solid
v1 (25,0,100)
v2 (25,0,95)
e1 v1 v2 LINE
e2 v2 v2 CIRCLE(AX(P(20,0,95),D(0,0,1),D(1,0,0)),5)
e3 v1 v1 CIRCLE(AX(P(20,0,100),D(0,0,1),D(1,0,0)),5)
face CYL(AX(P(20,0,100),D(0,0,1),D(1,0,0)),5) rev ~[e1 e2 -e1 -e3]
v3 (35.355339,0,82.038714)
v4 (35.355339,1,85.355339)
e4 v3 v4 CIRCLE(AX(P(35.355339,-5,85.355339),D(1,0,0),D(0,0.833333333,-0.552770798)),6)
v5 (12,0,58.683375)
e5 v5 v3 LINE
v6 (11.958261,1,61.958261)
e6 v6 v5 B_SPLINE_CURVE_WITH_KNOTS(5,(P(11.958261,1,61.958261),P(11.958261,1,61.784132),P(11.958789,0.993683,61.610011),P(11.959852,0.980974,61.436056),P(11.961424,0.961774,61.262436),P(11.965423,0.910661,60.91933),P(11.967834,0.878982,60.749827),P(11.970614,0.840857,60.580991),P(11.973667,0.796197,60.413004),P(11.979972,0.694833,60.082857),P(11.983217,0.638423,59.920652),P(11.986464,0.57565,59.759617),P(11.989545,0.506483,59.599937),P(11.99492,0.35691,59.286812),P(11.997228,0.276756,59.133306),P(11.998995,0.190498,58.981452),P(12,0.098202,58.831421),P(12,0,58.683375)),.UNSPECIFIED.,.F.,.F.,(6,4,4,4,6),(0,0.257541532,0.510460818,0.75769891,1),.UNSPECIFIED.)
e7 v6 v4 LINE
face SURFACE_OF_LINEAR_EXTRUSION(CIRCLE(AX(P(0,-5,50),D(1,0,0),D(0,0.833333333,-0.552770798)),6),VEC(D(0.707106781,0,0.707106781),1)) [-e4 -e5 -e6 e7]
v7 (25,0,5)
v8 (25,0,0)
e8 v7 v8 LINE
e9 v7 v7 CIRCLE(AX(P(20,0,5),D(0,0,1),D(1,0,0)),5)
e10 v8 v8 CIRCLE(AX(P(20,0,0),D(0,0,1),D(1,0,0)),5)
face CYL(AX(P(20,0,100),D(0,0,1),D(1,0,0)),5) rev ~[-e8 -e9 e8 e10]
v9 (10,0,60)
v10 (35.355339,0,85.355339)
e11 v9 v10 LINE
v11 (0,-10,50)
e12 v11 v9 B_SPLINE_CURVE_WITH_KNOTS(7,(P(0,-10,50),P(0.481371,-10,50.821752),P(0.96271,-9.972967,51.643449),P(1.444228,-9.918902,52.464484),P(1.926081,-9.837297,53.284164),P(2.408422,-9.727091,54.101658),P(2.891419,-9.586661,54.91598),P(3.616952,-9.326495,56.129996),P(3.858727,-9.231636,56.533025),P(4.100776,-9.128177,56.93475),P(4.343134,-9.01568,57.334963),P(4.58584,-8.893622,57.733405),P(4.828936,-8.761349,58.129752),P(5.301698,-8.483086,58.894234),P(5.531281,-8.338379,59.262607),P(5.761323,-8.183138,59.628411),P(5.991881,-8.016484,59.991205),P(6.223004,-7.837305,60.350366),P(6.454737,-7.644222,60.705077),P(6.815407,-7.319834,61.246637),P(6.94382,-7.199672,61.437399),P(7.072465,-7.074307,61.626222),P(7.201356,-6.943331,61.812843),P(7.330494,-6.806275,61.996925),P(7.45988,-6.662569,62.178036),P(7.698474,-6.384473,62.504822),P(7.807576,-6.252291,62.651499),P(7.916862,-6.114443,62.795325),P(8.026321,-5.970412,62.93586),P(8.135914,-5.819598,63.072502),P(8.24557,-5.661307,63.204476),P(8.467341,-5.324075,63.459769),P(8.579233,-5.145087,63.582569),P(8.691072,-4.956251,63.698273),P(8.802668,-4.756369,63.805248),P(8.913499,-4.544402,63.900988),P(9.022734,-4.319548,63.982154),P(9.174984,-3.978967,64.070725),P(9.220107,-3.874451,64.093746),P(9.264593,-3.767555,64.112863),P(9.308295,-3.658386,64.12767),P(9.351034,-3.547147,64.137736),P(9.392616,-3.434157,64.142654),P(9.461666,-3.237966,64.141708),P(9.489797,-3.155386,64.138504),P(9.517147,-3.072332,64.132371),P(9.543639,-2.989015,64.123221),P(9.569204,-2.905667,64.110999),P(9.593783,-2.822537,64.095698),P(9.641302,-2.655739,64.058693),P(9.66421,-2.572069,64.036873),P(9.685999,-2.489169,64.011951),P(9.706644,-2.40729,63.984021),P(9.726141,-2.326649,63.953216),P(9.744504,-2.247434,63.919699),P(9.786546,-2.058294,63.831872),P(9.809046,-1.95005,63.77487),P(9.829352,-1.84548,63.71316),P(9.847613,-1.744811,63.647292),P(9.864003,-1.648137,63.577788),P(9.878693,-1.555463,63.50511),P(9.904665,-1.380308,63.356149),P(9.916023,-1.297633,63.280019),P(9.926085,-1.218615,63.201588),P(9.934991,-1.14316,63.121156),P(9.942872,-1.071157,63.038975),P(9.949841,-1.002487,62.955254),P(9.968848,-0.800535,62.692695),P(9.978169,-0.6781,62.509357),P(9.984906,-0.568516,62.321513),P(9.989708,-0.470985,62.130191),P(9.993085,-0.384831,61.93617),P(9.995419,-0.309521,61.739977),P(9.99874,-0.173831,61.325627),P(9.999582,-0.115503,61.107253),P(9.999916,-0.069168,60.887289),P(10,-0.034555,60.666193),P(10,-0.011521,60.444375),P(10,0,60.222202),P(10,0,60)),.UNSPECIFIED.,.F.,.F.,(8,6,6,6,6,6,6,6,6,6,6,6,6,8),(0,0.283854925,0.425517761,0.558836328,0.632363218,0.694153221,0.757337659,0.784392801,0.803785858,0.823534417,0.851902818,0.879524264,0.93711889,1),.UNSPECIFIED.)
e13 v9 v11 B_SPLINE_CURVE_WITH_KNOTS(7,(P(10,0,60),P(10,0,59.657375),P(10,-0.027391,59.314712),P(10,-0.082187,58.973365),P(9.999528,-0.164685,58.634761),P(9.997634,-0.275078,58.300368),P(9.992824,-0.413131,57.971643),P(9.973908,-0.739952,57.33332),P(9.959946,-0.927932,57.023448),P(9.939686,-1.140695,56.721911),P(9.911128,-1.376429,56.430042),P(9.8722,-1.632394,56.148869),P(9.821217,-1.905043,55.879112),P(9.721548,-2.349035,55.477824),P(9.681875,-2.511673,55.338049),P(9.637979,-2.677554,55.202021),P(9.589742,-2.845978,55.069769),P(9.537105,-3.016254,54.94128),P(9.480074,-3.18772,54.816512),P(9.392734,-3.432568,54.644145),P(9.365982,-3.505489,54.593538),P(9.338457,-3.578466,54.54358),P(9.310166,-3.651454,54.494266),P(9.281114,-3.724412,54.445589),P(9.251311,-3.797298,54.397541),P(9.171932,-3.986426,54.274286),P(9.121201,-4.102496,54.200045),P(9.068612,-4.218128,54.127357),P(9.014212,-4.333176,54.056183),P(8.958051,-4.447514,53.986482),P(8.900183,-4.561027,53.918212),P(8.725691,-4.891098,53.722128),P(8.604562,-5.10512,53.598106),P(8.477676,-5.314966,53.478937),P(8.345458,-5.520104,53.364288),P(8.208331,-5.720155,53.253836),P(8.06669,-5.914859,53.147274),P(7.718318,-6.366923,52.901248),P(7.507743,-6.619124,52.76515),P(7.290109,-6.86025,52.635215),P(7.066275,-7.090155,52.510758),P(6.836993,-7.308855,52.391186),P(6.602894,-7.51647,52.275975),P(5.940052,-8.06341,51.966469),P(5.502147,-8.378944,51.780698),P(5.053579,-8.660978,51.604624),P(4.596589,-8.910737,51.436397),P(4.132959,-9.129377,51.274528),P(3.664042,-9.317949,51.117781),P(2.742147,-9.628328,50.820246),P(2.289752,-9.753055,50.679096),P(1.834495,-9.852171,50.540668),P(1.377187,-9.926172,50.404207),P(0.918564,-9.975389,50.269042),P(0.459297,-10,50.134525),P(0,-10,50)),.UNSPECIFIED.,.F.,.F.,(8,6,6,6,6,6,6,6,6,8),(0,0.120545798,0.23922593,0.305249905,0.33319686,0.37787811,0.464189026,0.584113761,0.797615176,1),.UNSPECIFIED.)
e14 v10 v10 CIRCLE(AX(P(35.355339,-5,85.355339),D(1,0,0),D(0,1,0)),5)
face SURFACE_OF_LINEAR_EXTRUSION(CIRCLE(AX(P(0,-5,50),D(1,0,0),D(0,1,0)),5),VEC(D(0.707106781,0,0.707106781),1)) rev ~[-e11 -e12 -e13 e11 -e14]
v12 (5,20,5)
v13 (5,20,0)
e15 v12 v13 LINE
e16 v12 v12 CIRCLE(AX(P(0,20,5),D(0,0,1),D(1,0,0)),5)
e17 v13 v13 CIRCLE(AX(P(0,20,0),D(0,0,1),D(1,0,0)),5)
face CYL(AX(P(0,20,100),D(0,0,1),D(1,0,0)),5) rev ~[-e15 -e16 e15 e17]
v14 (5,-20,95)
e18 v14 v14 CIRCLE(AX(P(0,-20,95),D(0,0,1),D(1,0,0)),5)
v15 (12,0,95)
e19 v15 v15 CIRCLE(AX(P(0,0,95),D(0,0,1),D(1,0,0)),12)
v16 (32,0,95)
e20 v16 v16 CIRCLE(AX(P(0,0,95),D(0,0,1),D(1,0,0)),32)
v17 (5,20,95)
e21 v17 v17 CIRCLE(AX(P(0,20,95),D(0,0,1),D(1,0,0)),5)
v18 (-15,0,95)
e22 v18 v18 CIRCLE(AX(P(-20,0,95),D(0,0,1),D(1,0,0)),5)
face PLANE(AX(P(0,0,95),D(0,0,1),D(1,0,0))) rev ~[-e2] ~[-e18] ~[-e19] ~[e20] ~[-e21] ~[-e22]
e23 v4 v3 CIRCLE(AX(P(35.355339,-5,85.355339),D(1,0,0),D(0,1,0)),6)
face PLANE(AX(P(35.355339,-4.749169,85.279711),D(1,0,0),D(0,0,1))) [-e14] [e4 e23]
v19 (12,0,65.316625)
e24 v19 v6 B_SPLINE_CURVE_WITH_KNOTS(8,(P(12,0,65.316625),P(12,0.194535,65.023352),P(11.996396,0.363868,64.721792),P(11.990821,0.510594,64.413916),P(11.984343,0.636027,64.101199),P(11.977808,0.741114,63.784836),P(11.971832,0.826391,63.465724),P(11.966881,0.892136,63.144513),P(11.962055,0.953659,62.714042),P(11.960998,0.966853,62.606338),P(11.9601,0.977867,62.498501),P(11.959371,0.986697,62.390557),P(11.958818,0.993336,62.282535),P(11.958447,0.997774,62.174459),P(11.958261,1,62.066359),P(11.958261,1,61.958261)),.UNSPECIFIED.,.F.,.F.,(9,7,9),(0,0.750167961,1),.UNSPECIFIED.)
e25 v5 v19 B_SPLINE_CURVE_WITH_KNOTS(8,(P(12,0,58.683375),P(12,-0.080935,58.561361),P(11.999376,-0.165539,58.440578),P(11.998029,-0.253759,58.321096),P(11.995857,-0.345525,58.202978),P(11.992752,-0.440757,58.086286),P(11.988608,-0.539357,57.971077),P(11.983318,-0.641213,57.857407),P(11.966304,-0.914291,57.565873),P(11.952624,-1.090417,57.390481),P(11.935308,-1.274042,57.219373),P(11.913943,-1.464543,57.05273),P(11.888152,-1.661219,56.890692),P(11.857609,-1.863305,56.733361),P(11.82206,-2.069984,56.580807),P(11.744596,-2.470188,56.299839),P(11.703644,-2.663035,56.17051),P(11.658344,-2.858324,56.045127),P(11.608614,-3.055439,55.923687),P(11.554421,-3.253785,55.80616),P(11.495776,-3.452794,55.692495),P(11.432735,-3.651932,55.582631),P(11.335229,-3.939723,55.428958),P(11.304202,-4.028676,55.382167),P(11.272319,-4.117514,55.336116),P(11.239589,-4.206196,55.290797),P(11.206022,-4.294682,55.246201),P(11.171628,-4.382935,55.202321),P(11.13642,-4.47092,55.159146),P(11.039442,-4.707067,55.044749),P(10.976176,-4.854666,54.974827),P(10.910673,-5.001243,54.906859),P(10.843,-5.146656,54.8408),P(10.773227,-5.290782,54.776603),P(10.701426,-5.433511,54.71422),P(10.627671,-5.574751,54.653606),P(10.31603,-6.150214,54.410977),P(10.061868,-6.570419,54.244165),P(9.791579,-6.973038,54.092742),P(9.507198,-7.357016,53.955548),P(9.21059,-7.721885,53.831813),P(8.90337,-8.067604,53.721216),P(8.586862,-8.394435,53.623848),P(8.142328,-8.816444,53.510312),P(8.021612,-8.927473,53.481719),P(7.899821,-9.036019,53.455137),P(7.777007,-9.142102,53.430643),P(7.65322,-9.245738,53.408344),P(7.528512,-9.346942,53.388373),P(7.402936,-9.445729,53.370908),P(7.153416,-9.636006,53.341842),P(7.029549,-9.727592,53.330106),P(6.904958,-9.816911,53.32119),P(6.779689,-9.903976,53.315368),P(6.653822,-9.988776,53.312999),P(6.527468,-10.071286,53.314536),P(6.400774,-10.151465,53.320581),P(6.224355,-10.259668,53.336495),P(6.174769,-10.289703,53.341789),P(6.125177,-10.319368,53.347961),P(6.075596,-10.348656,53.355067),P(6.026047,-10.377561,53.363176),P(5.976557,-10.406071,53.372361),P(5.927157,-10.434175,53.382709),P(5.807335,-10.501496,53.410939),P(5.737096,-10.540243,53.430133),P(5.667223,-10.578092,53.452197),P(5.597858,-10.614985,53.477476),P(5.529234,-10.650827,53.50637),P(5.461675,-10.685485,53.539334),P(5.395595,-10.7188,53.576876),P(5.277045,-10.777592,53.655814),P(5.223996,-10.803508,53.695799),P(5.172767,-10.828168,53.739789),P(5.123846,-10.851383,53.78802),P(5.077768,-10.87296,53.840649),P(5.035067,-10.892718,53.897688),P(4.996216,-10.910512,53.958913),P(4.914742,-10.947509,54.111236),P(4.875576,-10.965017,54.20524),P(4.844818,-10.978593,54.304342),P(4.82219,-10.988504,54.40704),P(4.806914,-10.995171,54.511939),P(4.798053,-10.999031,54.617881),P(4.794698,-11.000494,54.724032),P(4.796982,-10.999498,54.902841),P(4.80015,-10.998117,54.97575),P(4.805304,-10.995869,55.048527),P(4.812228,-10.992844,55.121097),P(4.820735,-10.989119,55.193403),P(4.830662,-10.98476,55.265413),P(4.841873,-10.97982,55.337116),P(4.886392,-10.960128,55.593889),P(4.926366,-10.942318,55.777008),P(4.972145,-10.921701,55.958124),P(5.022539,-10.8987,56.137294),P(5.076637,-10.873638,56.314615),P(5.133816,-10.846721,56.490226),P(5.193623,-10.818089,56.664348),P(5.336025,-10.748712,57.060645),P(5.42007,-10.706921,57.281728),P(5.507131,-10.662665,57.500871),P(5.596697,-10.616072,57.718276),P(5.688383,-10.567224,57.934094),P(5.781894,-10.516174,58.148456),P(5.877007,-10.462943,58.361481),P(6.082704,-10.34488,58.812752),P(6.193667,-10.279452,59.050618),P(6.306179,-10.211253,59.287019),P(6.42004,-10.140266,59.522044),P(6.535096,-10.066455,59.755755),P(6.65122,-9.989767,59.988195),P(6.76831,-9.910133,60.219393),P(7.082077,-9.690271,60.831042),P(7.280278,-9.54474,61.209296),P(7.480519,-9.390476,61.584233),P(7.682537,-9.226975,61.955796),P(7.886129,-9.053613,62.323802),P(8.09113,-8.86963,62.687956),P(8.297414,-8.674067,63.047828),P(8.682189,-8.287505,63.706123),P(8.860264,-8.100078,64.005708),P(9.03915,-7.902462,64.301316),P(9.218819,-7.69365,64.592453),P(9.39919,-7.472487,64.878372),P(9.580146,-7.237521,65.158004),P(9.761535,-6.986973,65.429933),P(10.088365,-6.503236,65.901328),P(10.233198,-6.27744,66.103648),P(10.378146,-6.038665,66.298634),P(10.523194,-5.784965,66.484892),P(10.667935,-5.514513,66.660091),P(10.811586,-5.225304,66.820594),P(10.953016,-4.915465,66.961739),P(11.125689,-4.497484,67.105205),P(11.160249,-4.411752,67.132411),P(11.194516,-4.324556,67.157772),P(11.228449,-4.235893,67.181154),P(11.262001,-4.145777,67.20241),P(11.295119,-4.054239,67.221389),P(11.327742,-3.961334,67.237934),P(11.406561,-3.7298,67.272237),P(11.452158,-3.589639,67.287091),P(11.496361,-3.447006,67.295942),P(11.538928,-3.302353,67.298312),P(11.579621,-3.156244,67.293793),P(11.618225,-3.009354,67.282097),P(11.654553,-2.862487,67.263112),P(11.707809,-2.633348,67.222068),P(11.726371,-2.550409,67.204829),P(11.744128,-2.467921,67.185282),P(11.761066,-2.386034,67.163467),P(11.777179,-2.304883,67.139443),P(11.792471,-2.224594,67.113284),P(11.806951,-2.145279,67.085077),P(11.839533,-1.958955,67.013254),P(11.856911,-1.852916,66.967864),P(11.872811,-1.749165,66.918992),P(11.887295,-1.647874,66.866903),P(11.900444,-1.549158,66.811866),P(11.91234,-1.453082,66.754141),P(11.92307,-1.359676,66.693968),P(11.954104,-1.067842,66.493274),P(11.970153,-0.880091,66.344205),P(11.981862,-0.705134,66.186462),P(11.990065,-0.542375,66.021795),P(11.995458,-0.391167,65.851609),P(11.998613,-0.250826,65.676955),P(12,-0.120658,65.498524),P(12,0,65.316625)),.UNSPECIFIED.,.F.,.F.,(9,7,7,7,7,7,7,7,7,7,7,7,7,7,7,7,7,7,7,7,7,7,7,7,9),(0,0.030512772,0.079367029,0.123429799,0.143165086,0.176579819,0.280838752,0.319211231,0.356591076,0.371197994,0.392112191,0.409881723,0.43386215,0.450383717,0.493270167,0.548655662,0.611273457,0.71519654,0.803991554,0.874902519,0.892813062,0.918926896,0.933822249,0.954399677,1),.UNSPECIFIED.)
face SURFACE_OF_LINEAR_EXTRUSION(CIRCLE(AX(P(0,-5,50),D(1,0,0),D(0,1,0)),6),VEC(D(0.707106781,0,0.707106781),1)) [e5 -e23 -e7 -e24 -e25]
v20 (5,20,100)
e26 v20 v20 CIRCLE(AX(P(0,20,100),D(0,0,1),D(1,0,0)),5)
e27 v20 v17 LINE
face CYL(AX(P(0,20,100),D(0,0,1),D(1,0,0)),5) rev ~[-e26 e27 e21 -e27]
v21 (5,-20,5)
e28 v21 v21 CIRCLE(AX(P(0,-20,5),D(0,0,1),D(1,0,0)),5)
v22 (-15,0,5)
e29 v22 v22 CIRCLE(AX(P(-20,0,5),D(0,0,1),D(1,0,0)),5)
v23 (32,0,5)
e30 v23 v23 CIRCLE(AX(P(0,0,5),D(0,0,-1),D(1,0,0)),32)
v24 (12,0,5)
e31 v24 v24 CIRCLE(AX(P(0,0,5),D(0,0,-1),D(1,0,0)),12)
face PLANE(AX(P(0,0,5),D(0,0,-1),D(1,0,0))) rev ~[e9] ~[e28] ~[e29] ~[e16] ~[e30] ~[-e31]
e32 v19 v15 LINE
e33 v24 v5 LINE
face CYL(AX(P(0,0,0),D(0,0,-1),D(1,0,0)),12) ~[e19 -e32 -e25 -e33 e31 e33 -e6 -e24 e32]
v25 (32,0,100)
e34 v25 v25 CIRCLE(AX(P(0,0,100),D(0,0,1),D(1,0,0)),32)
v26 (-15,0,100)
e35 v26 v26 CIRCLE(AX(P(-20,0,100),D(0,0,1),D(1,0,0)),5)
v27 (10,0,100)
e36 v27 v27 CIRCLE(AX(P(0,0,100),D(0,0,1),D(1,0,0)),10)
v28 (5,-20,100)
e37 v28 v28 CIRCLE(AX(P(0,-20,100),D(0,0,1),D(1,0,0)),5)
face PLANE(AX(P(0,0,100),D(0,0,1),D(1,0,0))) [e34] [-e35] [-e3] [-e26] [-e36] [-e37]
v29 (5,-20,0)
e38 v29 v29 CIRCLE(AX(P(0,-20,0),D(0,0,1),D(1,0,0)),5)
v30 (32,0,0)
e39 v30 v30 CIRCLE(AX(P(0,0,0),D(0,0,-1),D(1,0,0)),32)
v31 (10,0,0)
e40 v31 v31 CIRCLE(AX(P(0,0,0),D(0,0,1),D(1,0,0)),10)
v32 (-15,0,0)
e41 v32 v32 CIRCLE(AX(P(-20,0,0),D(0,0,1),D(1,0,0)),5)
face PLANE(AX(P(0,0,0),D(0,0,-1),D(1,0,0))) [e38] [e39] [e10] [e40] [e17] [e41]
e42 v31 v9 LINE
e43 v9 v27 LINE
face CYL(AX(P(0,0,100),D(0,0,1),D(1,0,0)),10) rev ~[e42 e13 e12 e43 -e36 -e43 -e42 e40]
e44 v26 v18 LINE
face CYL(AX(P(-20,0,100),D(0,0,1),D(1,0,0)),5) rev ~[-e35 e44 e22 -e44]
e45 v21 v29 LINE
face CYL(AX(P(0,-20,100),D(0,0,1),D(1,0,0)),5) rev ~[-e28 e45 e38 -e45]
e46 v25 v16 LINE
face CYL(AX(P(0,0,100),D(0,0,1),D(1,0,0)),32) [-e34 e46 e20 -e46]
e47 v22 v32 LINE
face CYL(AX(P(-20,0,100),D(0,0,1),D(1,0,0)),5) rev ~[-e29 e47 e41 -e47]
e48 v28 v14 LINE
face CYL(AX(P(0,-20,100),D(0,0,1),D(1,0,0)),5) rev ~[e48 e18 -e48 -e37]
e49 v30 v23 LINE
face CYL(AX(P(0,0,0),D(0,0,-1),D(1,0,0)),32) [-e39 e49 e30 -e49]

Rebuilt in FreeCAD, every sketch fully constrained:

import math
import FreeCAD as App
import Part
import Sketcher
from FreeCAD import Vector

doc = App.newDocument("Part")
body = doc.addObject("PartDesign::Body", "Body")

sketch1 = doc.addObject("Sketcher::SketchObject", "Sketch")
body.addObject(sketch1)
sketch1.AttachmentSupport = (doc.XY_Plane, [""])
sketch1.MapMode = "FlatFace"
sketch1.addGeometry(Part.Circle(Vector(0, 0, 0), Vector(0, 0, 1), 12), False)
sketch1.addConstraint([
    Sketcher.Constraint("Coincident", 0, 3, -1, 1),
    Sketcher.Constraint("Diameter", 0, 24.0),
])
pad1 = doc.addObject("PartDesign::Pad", "Pad")
body.addObject(pad1)
pad1.Profile = sketch1
pad1.Length = 100

sketch2 = doc.addObject("Sketcher::SketchObject", "Sketch001")
body.addObject(sketch2)
sketch2.AttachmentSupport = (doc.XY_Plane, [""])
sketch2.MapMode = "FlatFace"
sketch2.AttachmentOffset = App.Placement(Vector(0, 0, 100), App.Rotation())
sketch2.addGeometry(Part.Circle(Vector(0, 0, 0), Vector(0, 0, 1), 10), False)
sketch2.addConstraint([
    Sketcher.Constraint("Coincident", 0, 3, -1, 1),
    Sketcher.Constraint("Diameter", 0, 20.0),
])
pocket1 = doc.addObject("PartDesign::Pocket", "Pocket")
body.addObject(pocket1)
pocket1.Profile = sketch2
pocket1.Type = "ThroughAll"

sketch3 = doc.addObject("Sketcher::SketchObject", "Sketch002")
body.addObject(sketch3)
sketch3.AttachmentSupport = (doc.XY_Plane, [""])
sketch3.MapMode = "FlatFace"
sketch3.addGeometry([
    Part.Circle(Vector(0, 0, 0), Vector(0, 0, 1), 32),
    Part.Circle(Vector(0, 0, 0), Vector(0, 0, 1), 12),
], False)
sketch3.addConstraint([
    Sketcher.Constraint("Coincident", 0, 3, -1, 1),
    Sketcher.Constraint("Coincident", 1, 3, -1, 1),
    Sketcher.Constraint("Diameter", 0, 64.0),
    Sketcher.Constraint("Diameter", 1, 24.0),
])
pad2 = doc.addObject("PartDesign::Pad", "Pad001")
body.addObject(pad2)
pad2.Profile = sketch3
pad2.Length = 5

sketch4 = doc.addObject("Sketcher::SketchObject", "Sketch003")
body.addObject(sketch4)
sketch4.AttachmentSupport = (doc.XY_Plane, [""])
sketch4.MapMode = "FlatFace"
sketch4.AttachmentOffset = App.Placement(Vector(0, 0, 100), App.Rotation())
sketch4.addGeometry([
    Part.Circle(Vector(0, 0, 0), Vector(0, 0, 1), 32),
    Part.Circle(Vector(0, 0, 0), Vector(0, 0, 1), 12),
], False)
sketch4.addConstraint([
    Sketcher.Constraint("Coincident", 0, 3, -1, 1),
    Sketcher.Constraint("Coincident", 1, 3, -1, 1),
    Sketcher.Constraint("Diameter", 0, 64.0),
    Sketcher.Constraint("Diameter", 1, 24.0),
])
pad3 = doc.addObject("PartDesign::Pad", "Pad002")
body.addObject(pad3)
pad3.Profile = sketch4
pad3.Length = 5
pad3.Reversed = True

sketch5 = doc.addObject("Sketcher::SketchObject", "Sketch004")
body.addObject(sketch5)
sketch5.AttachmentSupport = (doc.XY_Plane, [""])
sketch5.MapMode = "FlatFace"
sketch5.AttachmentOffset = App.Placement(Vector(0, 0, 100), App.Rotation())
sketch5.addGeometry([
    Part.Circle(Vector(0, 20, 0), Vector(0, 0, 1), 5),
    Part.Circle(Vector(-20, 0, 0), Vector(0, 0, 1), 5),
    Part.Circle(Vector(0, -20, 0), Vector(0, 0, 1), 5),
    Part.Circle(Vector(20, 0, 0), Vector(0, 0, 1), 5),
], False)
sketch5.addConstraint([
    Sketcher.Constraint("Equal", 0, 1),
    Sketcher.Constraint("Equal", 1, 2),
    Sketcher.Constraint("Equal", 2, 3),
    Sketcher.Constraint("Symmetric", 0, 3, 2, 3, -1, 1),
    Sketcher.Constraint("Symmetric", 1, 3, 3, 3, -1, 1),
    Sketcher.Constraint("PointOnObject", 0, 3, -2),
    Sketcher.Constraint("PointOnObject", 1, 3, -1),
    Sketcher.Constraint("Diameter", 0, 10.0),
    Sketcher.Constraint("DistanceY", -1, 1, 0, 3, 20.0),
    Sketcher.Constraint("DistanceX", 1, 3, -1, 1, 20.0),
])
pocket2 = doc.addObject("PartDesign::Pocket", "Pocket001")
body.addObject(pocket2)
pocket2.Profile = sketch5
pocket2.Type = "ThroughAll"

sketch6 = doc.addObject("Sketcher::SketchObject", "Sketch005")
body.addObject(sketch6)
sketch6.AttachmentSupport = (doc.YZ_Plane, [""])
sketch6.MapMode = "FlatFace"
sketch6.addGeometry([
    Part.ArcOfCircle(Part.Circle(Vector(-5, 50, 0), Vector(0, 0, 1), 6), math.radians(-33.55731), math.radians(0)),
    Part.ArcOfCircle(Part.Circle(Vector(-5, 50, 0), Vector(0, 0, 1), 6), math.radians(0), math.radians(326.44269)),
], False)
sketch6.addConstraint([
    Sketcher.Constraint("Tangent", 0, 1, 1, 2),
    Sketcher.Constraint("Coincident", 1, 1, 0, 2),
    Sketcher.Constraint("PointOnObject", 0, 1, -2),
    Sketcher.Constraint("Horizontal", 0, 3, 1, 1),
    Sketcher.Constraint("Radius", 0, 6.0),
    Sketcher.Constraint("DistanceX", 0, 3, -1, 1, 5.0),
    Sketcher.Constraint("DistanceY", -1, 1, 0, 3, 50.0),
])

sketch7 = doc.addObject("Sketcher::SketchObject", "Sketch006")
body.addObject(sketch7)
sketch7.Placement = App.Placement(Vector(-25, 0, 25), App.Rotation(Vector(0.707106781, 0, 0.707106781), Vector(0, 0.999999999, 0), Vector(-0.707106781, 0, 0.707106781), "ZXY"))
sketch7.addGeometry(Part.LineSegment(Vector(35.355339, -5, 0), Vector(85.355339, -5, 0)), False)
sketch7.addConstraint([
    Sketcher.Constraint("Horizontal", 0),
    Sketcher.Constraint("DistanceX", 0, 1, 0, 2, 50.0),
    Sketcher.Constraint("DistanceY", 0, 1, -1, 1, 5.0),
    Sketcher.Constraint("DistanceX", -1, 1, 0, 1, 35.355339),
])
doc.recompute()

additivepipe = doc.addObject("PartDesign::AdditivePipe", "AdditivePipe")
body.addObject(additivepipe)
additivepipe.Profile = sketch6
additivepipe.Spine = (sketch7, ["Edge1"])

sketch8 = doc.addObject("Sketcher::SketchObject", "Sketch007")
body.addObject(sketch8)
sketch8.AttachmentSupport = (doc.YZ_Plane, [""])
sketch8.MapMode = "FlatFace"
sketch8.AttachmentOffset = App.Placement(Vector(0, 0, 35.355339), App.Rotation())
sketch8.addGeometry(Part.Circle(Vector(-5, 85.355339, 0), Vector(0, 0, 1), 5), False)
sketch8.addConstraint([
    Sketcher.Constraint("Diameter", 0, 10.0),
    Sketcher.Constraint("DistanceX", 0, 3, -1, 1, 5.0),
    Sketcher.Constraint("DistanceY", -1, 1, 0, 3, 85.355339),
])

sketch9 = doc.addObject("Sketcher::SketchObject", "Sketch008")
body.addObject(sketch9)
sketch9.Placement = App.Placement(Vector(-25, 0, 25), App.Rotation(Vector(0.707106781, 0, 0.707106781), Vector(0, 0.999999999, 0), Vector(-0.707106781, 0, 0.707106781), "ZXY"))
sketch9.addGeometry(Part.LineSegment(Vector(35.355339, -5, 0), Vector(85.355339, -5, 0)), False)
sketch9.addConstraint([
    Sketcher.Constraint("Horizontal", 0),
    Sketcher.Constraint("DistanceX", 0, 1, 0, 2, 50.0),
    Sketcher.Constraint("DistanceY", 0, 1, -1, 1, 5.0),
    Sketcher.Constraint("DistanceX", -1, 1, 0, 1, 35.355339),
])
doc.recompute()

subtractivepipe = doc.addObject("PartDesign::SubtractivePipe", "SubtractivePipe")
body.addObject(subtractivepipe)
subtractivepipe.Profile = sketch8
subtractivepipe.Spine = (sketch9, ["Edge1"])

sketch10 = doc.addObject("Sketcher::SketchObject", "Sketch009")
body.addObject(sketch10)
sketch10.AttachmentSupport = (doc.XY_Plane, [""])
sketch10.MapMode = "FlatFace"
sketch10.AttachmentOffset = App.Placement(Vector(0, 0, 100), App.Rotation())
sketch10.addGeometry(Part.Circle(Vector(0, 0, 0), Vector(0, 0, 1), 10), False)
sketch10.addConstraint([
    Sketcher.Constraint("Coincident", 0, 3, -1, 1),
    Sketcher.Constraint("Diameter", 0, 20.0),
])
pocket3 = doc.addObject("PartDesign::Pocket", "Pocket002")
body.addObject(pocket3)
pocket3.Profile = sketch10
pocket3.Length = 100

doc.recompute()
